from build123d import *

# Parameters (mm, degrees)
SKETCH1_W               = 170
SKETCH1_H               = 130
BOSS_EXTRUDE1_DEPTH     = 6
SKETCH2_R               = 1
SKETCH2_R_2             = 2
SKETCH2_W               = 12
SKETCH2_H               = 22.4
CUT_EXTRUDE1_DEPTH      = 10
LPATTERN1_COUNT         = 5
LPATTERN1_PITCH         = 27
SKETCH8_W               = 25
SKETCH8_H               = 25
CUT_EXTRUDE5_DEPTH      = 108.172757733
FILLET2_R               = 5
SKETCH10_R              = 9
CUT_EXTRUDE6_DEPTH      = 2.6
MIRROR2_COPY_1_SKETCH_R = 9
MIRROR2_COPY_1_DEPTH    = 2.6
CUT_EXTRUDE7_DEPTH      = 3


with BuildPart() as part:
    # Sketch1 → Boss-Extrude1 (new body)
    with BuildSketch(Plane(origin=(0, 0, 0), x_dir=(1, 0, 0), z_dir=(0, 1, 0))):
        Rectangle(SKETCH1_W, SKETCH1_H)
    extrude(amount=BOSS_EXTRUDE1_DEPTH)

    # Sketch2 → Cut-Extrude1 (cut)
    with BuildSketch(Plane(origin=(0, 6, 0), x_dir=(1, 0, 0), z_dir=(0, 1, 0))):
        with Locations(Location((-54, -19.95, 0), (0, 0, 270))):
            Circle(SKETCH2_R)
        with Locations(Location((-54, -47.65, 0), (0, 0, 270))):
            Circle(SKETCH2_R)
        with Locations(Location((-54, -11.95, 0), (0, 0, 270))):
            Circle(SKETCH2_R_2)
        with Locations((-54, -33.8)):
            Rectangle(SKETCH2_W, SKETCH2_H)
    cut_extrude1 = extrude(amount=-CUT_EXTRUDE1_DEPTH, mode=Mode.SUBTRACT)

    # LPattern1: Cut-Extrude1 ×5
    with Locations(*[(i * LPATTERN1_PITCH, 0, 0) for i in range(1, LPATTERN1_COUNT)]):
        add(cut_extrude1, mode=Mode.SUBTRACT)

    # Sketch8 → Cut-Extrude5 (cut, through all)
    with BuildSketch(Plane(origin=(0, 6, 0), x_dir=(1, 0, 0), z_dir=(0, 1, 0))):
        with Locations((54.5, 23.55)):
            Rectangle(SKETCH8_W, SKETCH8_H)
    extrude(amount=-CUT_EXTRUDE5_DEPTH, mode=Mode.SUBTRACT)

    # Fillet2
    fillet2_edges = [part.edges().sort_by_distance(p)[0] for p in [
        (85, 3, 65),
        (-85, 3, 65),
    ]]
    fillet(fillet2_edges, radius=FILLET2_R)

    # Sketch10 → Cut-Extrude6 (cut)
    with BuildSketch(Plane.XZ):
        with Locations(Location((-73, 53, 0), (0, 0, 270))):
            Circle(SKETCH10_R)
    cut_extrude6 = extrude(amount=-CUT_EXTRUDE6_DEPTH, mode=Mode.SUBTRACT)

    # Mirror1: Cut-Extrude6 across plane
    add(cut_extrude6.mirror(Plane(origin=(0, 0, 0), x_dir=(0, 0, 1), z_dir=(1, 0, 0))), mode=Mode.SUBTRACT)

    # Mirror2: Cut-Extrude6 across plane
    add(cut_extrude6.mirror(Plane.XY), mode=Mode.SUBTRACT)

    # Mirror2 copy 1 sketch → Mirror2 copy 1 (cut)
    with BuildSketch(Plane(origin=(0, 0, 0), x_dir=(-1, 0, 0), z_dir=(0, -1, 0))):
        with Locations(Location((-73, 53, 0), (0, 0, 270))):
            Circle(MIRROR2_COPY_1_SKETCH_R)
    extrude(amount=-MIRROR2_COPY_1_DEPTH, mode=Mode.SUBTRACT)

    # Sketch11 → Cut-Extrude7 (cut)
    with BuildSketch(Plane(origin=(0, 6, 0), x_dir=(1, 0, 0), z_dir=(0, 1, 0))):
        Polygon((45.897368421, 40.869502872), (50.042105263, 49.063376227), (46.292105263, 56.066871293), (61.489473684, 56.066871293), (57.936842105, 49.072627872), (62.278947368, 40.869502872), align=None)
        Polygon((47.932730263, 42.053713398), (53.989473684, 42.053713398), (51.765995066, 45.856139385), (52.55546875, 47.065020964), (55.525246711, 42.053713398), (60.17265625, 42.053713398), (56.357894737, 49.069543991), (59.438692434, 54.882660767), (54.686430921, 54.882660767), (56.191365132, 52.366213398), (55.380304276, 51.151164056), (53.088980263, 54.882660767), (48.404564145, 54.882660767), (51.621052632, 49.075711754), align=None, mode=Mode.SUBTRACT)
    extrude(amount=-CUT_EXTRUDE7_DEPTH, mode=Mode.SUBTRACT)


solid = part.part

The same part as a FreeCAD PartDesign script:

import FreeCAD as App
import Part
import Sketcher


def edges_at(feature, points):
    """Names of the edges that pass closest to the given points."""
    edges = feature.Shape.Edges
    near = lambda p: min(range(len(edges)), key=lambda i: edges[i].distToShape(Part.Vertex(*p))[0])
    return sorted({f"Edge{near(p) + 1}" for p in points})

doc = App.newDocument("Part")
params = doc.addObject("Spreadsheet::Sheet", "Params")
for row, (alias, value) in enumerate([
    ("sketch1_width", "170 mm"),
    ("sketch1_height", "130 mm"),
    ("pad1_length", "6 mm"),
    ("sketch2_diameter", "2 mm"),
    ("sketch2_diameter2", "4 mm"),
    ("sketch2_width", "12 mm"),
    ("sketch2_height", "22.4 mm"),
    ("pocket1_length", "10 mm"),
    ("linearpattern_pitch", "27 mm"),
    ("sketch3_width", "25 mm"),
    ("fillet_radius", "5 mm"),
    ("sketch4_diameter", "18 mm"),
    ("pocket3_length", "2.6 mm"),
    ("sketch5_diameter", "18 mm"),
    ("pocket4_length", "2.6 mm"),
    ("pocket5_length", "3 mm"),
], start=1):
    params.set(f"A{row}", alias)
    params.set(f"B{row}", "=" + value)
    params.setAlias(f"B{row}", alias)

body = doc.addObject("PartDesign::Body", "Body")

sketch1 = body.newObject("Sketcher::SketchObject", "Sketch")
sketch1.AttachmentSupport = (doc.getObject("XZ_Plane"), [""])
sketch1.MapMode = "FlatFace"
sketch1.addGeometry([
    Part.LineSegment(App.Vector(-85, -65, 0), App.Vector(-85, 65, 0)),
    Part.LineSegment(App.Vector(-85, 65, 0), App.Vector(85, 65, 0)),
    Part.LineSegment(App.Vector(85, 65, 0), App.Vector(85, -65, 0)),
    Part.LineSegment(App.Vector(85, -65, 0), App.Vector(-85, -65, 0)),
], False)
sketch1.addConstraint([
    Sketcher.Constraint("Coincident", 0, 2, 1, 1),
    Sketcher.Constraint("Coincident", 1, 2, 2, 1),
    Sketcher.Constraint("Coincident", 2, 2, 3, 1),
    Sketcher.Constraint("Coincident", 3, 2, 0, 1),
    Sketcher.Constraint("Vertical", 0),
    Sketcher.Constraint("Horizontal", 1),
    Sketcher.Constraint("Vertical", 2),
    Sketcher.Constraint("Horizontal", 3),
    Sketcher.Constraint("Symmetric", 0, 2, 2, 2, -1, 1),
    Sketcher.Constraint("DistanceX", 1, 1, 1, 2, 170.0),
    Sketcher.Constraint("DistanceY", 0, 1, 0, 2, 130.0),
])
sketch1.setExpression("Constraints[9]", "Params.sketch1_width")
sketch1.setExpression("Constraints[10]", "Params.sketch1_height")
pad1 = body.newObject("PartDesign::Pad", "Pad")
pad1.Profile = sketch1
pad1.setExpression("Length", "Params.pad1_length")
pad1.Reversed = True

sketch2 = body.newObject("Sketcher::SketchObject", "Sketch001")
sketch2.AttachmentSupport = (doc.getObject("XZ_Plane"), [""])
sketch2.MapMode = "FlatFace"
sketch2.AttachmentOffset = App.Placement(App.Vector(0, 0, -6), App.Rotation())
sketch2.addGeometry([
    Part.Circle(App.Vector(-54, 19.9, 0), App.Vector(0, 0, 1), 1),
    Part.Circle(App.Vector(-54, 47.6, 0), App.Vector(0, 0, 1), 1),
    Part.Circle(App.Vector(-54, 11.9, 0), App.Vector(0, 0, 1), 2),
    Part.LineSegment(App.Vector(-60, 22.6, 0), App.Vector(-60, 45, 0)),
    Part.LineSegment(App.Vector(-60, 45, 0), App.Vector(-48, 45, 0)),
    Part.LineSegment(App.Vector(-48, 45, 0), App.Vector(-48, 22.6, 0)),
    Part.LineSegment(App.Vector(-48, 22.6, 0), App.Vector(-60, 22.6, 0)),
], False)
sketch2.addConstraint([
    Sketcher.Constraint("Coincident", 3, 2, 4, 1),
    Sketcher.Constraint("Coincident", 4, 2, 5, 1),
    Sketcher.Constraint("Coincident", 5, 2, 6, 1),
    Sketcher.Constraint("Coincident", 6, 2, 3, 1),
    Sketcher.Constraint("Vertical", 3),
    Sketcher.Constraint("Horizontal", 4),
    Sketcher.Constraint("Vertical", 5),
    Sketcher.Constraint("Horizontal", 6),
    Sketcher.Constraint("Equal", 0, 1),
    Sketcher.Constraint("Vertical", 0, 3, 1, 3),
    Sketcher.Constraint("Vertical", 1, 3, 2, 3),
    Sketcher.Constraint("Diameter", 0, 2.0),
    Sketcher.Constraint("Diameter", 2, 4.0),
    Sketcher.Constraint("DistanceX", 4, 1, 4, 2, 12.0),
    Sketcher.Constraint("DistanceY", 3, 1, 3, 2, 22.4),
    Sketcher.Constraint("DistanceX", 0, 3, -1, 1, 54.0),
    Sketcher.Constraint("DistanceX", 3, 2, -1, 1, 60.0),
    Sketcher.Constraint("DistanceY", -1, 1, 3, 2, 45.0),
    Sketcher.Constraint("DistanceY", 2, 3, 0, 3, 8.0),
    Sketcher.Constraint("DistanceY", 0, 3, 1, 3, 27.7),
    Sketcher.Constraint("DistanceY", -1, 1, 0, 3, 19.95),
])
sketch2.setExpression("Constraints[11]", "Params.sketch2_diameter")
sketch2.setExpression("Constraints[12]", "Params.sketch2_diameter2")
sketch2.setExpression("Constraints[13]", "Params.sketch2_width")
sketch2.setExpression("Constraints[14]", "Params.sketch2_height")
pocket1 = body.newObject("PartDesign::Pocket", "Pocket")
pocket1.Profile = sketch2
pocket1.setExpression("Length", "Params.pocket1_length")
pocket1.Reversed = True
doc.recompute()

linearpattern = body.newObject("PartDesign::LinearPattern", "LinearPattern")
linearpattern.Originals = [pocket1]
linearpattern.Direction = (doc.getObject("X_Axis"), [""])
linearpattern.Mode = "offset"
linearpattern.setExpression("Offset", "Params.linearpattern_pitch")
linearpattern.Occurrences = 5
body.Tip = linearpattern

sketch3 = body.newObject("Sketcher::SketchObject", "Sketch002")
sketch3.AttachmentSupport = (doc.getObject("XZ_Plane"), [""])
sketch3.MapMode = "FlatFace"
sketch3.AttachmentOffset = App.Placement(App.Vector(0, 0, -6), App.Rotation())
sketch3.addGeometry([
    Part.LineSegment(App.Vector(42, -36, 0), App.Vector(42, -11, 0)),
    Part.LineSegment(App.Vector(42, -11, 0), App.Vector(67, -11, 0)),
    Part.LineSegment(App.Vector(67, -11, 0), App.Vector(67, -36, 0)),
    Part.LineSegment(App.Vector(67, -36, 0), App.Vector(42, -36, 0)),
], False)
sketch3.addConstraint([
    Sketcher.Constraint("Coincident", 0, 2, 1, 1),
    Sketcher.Constraint("Coincident", 1, 2, 2, 1),
    Sketcher.Constraint("Coincident", 2, 2, 3, 1),
    Sketcher.Constraint("Coincident", 3, 2, 0, 1),
    Sketcher.Constraint("Vertical", 0),
    Sketcher.Constraint("Horizontal", 1),
    Sketcher.Constraint("Vertical", 2),
    Sketcher.Constraint("Horizontal", 3),
    Sketcher.Constraint("Equal", 3, 0),
    Sketcher.Constraint("DistanceX", 1, 1, 1, 2, 25.0),
    Sketcher.Constraint("DistanceX", -1, 1, 0, 2, 42.0),
    Sketcher.Constraint("DistanceY", 0, 2, -1, 1, 11.05),
])
sketch3.setExpression("Constraints[9]", "Params.sketch3_width")
pocket2 = body.newObject("PartDesign::Pocket", "Pocket001")
pocket2.Profile = sketch3
pocket2.Type = "ThroughAll"
pocket2.Reversed = True
doc.recompute()

fillet = body.newObject("PartDesign::Fillet", "Fillet")
fillet.Base = (pocket2, edges_at(pocket2, [(85, 3, 65), (-85, 3, 65)]))
fillet.setExpression("Radius", "Params.fillet_radius")

sketch4 = body.newObject("Sketcher::SketchObject", "Sketch003")
sketch4.AttachmentSupport = (doc.getObject("XZ_Plane"), [""])
sketch4.MapMode = "FlatFace"
sketch4.addGeometry(Part.Circle(App.Vector(-73, 53, 0), App.Vector(0, 0, 1), 9), False)
sketch4.addConstraint([
    Sketcher.Constraint("Diameter", 0, 18.0),
    Sketcher.Constraint("DistanceX", 0, 3, -1, 1, 73.0),
    Sketcher.Constraint("DistanceY", -1, 1, 0, 3, 53.0),
])
sketch4.setExpression("Constraints[0]", "Params.sketch4_diameter")
pocket3 = body.newObject("PartDesign::Pocket", "Pocket002")
pocket3.Profile = sketch4
pocket3.setExpression("Length", "Params.pocket3_length")
doc.recompute()

mirrored = body.newObject("PartDesign::Mirrored", "Mirrored")
mirrored.Originals = [pocket3]
mirrored.MirrorPlane = (doc.getObject("YZ_Plane"), [""])
body.Tip = mirrored
doc.recompute()

mirrored2 = body.newObject("PartDesign::Mirrored", "Mirrored001")
mirrored2.Originals = [pocket3]
mirrored2.MirrorPlane = (doc.getObject("XY_Plane"), [""])
body.Tip = mirrored2

sketch5 = body.newObject("Sketcher::SketchObject", "Sketch004")
sketch5.AttachmentSupport = (doc.getObject("XZ_Plane"), [""])
sketch5.MapMode = "FlatFace"
sketch5.addGeometry(Part.Circle(App.Vector(73, -53, 0), App.Vector(0, 0, 1), 9), False)
sketch5.addConstraint([
    Sketcher.Constraint("Diameter", 0, 18.0),
    Sketcher.Constraint("DistanceX", -1, 1, 0, 3, 73.0),
    Sketcher.Constraint("DistanceY", 0, 3, -1, 1, 53.0),
])
sketch5.setExpression("Constraints[0]", "Params.sketch5_diameter")
pocket4 = body.newObject("PartDesign::Pocket", "Pocket003")
pocket4.Profile = sketch5
pocket4.setExpression("Length", "Params.pocket4_length")

sketch6 = body.newObject("Sketcher::SketchObject", "Sketch005")
sketch6.AttachmentSupport = (doc.getObject("XZ_Plane"), [""])
sketch6.MapMode = "FlatFace"
sketch6.AttachmentOffset = App.Placement(App.Vector(0, 0, -6), App.Rotation())
sketch6.addGeometry([
    Part.LineSegment(App.Vector(50, -49.1, 0), App.Vector(45.9, -40.9, 0)),
    Part.LineSegment(App.Vector(45.9, -40.9, 0), App.Vector(62.3, -40.9, 0)),
    Part.LineSegment(App.Vector(62.3, -40.9, 0), App.Vector(57.9, -49.1, 0)),
    Part.LineSegment(App.Vector(57.9, -49.1, 0), App.Vector(61.5, -56.1, 0)),
    Part.LineSegment(App.Vector(61.5, -56.1, 0), App.Vector(46.3, -56.1, 0)),
    Part.LineSegment(App.Vector(46.3, -56.1, 0), App.Vector(50, -49.1, 0)),
    Part.LineSegment(App.Vector(47.9, -42.1, 0), App.Vector(51.6, -49.1, 0)),
    Part.LineSegment(App.Vector(51.6, -49.1, 0), App.Vector(48.4, -54.9, 0)),
    Part.LineSegment(App.Vector(48.4, -54.9, 0), App.Vector(53.1, -54.9, 0)),
    Part.LineSegment(App.Vector(53.1, -54.9, 0), App.Vector(55.4, -51.2, 0)),
    Part.LineSegment(App.Vector(55.4, -51.2, 0), App.Vector(56.2, -52.4, 0)),
    Part.LineSegment(App.Vector(56.2, -52.4, 0), App.Vector(54.7, -54.9, 0)),
    Part.LineSegment(App.Vector(54.7, -54.9, 0), App.Vector(59.4, -54.9, 0)),
    Part.LineSegment(App.Vector(59.4, -54.9, 0), App.Vector(56.4, -49.1, 0)),
    Part.LineSegment(App.Vector(56.4, -49.1, 0), App.Vector(60.2, -42.1, 0)),
    Part.LineSegment(App.Vector(60.2, -42.1, 0), App.Vector(55.5, -42.1, 0)),
    Part.LineSegment(App.Vector(55.5, -42.1, 0), App.Vector(52.6, -47.1, 0)),
    Part.LineSegment(App.Vector(52.6, -47.1, 0), App.Vector(51.8, -45.9, 0)),
    Part.LineSegment(App.Vector(51.8, -45.9, 0), App.Vector(54, -42.1, 0)),
    Part.LineSegment(App.Vector(54, -42.1, 0), App.Vector(47.9, -42.1, 0)),
], False)
sketch6.addConstraint([
    Sketcher.Constraint("Coincident", 0, 2, 1, 1),
    Sketcher.Constraint("Coincident", 1, 2, 2, 1),
    Sketcher.Constraint("Coincident", 2, 2, 3, 1),
    Sketcher.Constraint("Coincident", 3, 2, 4, 1),
    Sketcher.Constraint("Coincident", 4, 2, 5, 1),
    Sketcher.Constraint("Coincident", 5, 2, 0, 1),
    Sketcher.Constraint("Coincident", 6, 2, 7, 1),
    Sketcher.Constraint("Coincident", 7, 2, 8, 1),
    Sketcher.Constraint("Coincident", 8, 2, 9, 1),
    Sketcher.Constraint("Coincident", 9, 2, 10, 1),
    Sketcher.Constraint("Coincident", 10, 2, 11, 1),
    Sketcher.Constraint("Coincident", 11, 2, 12, 1),
    Sketcher.Constraint("Coincident", 12, 2, 13, 1),
    Sketcher.Constraint("Coincident", 13, 2, 14, 1),
    Sketcher.Constraint("Coincident", 14, 2, 15, 1),
    Sketcher.Constraint("Coincident", 15, 2, 16, 1),
    Sketcher.Constraint("Coincident", 16, 2, 17, 1),
    Sketcher.Constraint("Coincident", 17, 2, 18, 1),
    Sketcher.Constraint("Coincident", 18, 2, 19, 1),
    Sketcher.Constraint("Coincident", 19, 2, 6, 1),
    Sketcher.Constraint("Horizontal", 1),
    Sketcher.Constraint("Horizontal", 4),
    Sketcher.Constraint("Horizontal", 8),
    Sketcher.Constraint("Horizontal", 12),
    Sketcher.Constraint("Horizontal", 15),
    Sketcher.Constraint("Horizontal", 19),
    Sketcher.Constraint("Horizontal", 8, 2, 11, 2),
    Sketcher.Constraint("Horizontal", 15, 2, 18, 2),
    Sketcher.Constraint("DistanceX", 4, 2, 5, 2, 3.75),
    Sketcher.Constraint("DistanceY", 6, 2, 15, 2, 7.021998),
    Sketcher.Constraint("DistanceX", 1, 1, 1, 2, 16.381579),
    Sketcher.Constraint("DistanceX", 4, 2, 4, 1, 15.197368),
    Sketcher.Constraint("DistanceX", 12, 1, 12, 2, 4.752262),
    Sketcher.Constraint("DistanceX", 15, 2, 15, 1, 4.64741),
    Sketcher.Constraint("DistanceX", 5, 2, 9, 2, 5.338199),
    Sketcher.Constraint("DistanceY", 10, 2, 6, 2, 3.290502),
    Sketcher.Constraint("DistanceX", 15, 2, 1, 2, 6.753701),
    Sketcher.Constraint("DistanceX", 17, 2, 13, 2, 4.5919),
    Sketcher.Constraint("Distance", 2, 9.281441),
    Sketcher.Constraint("Distance", 5, 7.944271),
    Sketcher.Constraint("Distance", 6, 7.93172),
    Sketcher.Constraint("Distance", 9, 4.378839),
    Sketcher.Constraint("Distance", 10, 1.460878),
    Sketcher.Constraint("Distance", 11, 2.932121),
    Sketcher.Constraint("Distance", 13, 6.57903),
    Sketcher.Constraint("Distance", 14, 7.98588),
    Sketcher.Constraint("DistanceX", 8, 1, 8, 2, 4.684416),
    Sketcher.Constraint("DistanceX", 19, 2, 19, 1, 6.056743),
    Sketcher.Constraint("DistanceX", -1, 1, 0, 2, 45.897368),
    Sketcher.Constraint("DistanceY", 3, 2, -1, 1, 56.066871),
    Sketcher.Constraint("DistanceY", 6, 2, -1, 1, 49.075712),
    Sketcher.Constraint("DistanceY", 7, 2, -1, 1, 54.882661),
    Sketcher.Constraint("DistanceX", -1, 1, 8, 2, 53.08898),
    Sketcher.Constraint("DistanceX", -1, 1, 11, 2, 54.686431),
    Sketcher.Constraint("DistanceX", -1, 1, 16, 2, 52.555469),
    Sketcher.Constraint("DistanceY", 16, 2, -1, 1, 47.065021),
    Sketcher.Constraint("DistanceY", 17, 2, -1, 1, 45.856139),
    Sketcher.Constraint("DistanceX", -1, 1, 19, 2, 47.93273),
    Sketcher.Constraint("DistanceX", 2, 2, 3, 2, 3.552632),
    Sketcher.Constraint("DistanceY", 3, 2, 1, 2, 15.197368),
])
pocket5 = body.newObject("PartDesign::Pocket", "Pocket004")
pocket5.Profile = sketch6
pocket5.setExpression("Length", "Params.pocket5_length")
pocket5.Reversed = True

doc.recompute()
